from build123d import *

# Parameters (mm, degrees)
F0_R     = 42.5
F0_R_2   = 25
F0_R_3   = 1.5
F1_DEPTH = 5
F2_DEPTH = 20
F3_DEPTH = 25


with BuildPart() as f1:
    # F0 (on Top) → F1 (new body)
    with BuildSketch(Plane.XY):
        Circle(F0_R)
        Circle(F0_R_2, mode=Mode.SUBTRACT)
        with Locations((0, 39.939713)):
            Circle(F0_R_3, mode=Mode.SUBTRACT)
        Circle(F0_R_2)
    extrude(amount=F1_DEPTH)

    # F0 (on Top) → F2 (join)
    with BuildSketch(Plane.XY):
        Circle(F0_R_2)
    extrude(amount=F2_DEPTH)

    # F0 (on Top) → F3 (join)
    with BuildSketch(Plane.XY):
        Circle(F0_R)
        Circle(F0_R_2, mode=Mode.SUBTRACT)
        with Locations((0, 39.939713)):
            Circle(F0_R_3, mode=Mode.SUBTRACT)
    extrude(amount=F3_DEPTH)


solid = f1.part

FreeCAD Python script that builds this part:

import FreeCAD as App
import Part
import Sketcher
from FreeCAD import Vector
Q = App.Units.Quantity

doc = App.newDocument("Part")
body = doc.addObject("PartDesign::Body", "Body")

# Sketch on XY plane
sketch1 = doc.addObject("Sketcher::SketchObject", "Sketch")
body.addObject(sketch1)
sketch1.AttachmentSupport = (doc.XY_Plane, [""])
sketch1.MapMode = "FlatFace"
sketch1.addGeometry([
    Part.Circle(Vector(0, 0, 0), Vector(0, 0, 1), 42.5),
    Part.Circle(Vector(0, 39.939713, 0), Vector(0, 0, 1), 1.5),
], False)
sketch1.addConstraint([
    Sketcher.Constraint("Coincident", 0, 3, -1, 1),
    Sketcher.Constraint("PointOnObject", 1, 3, -2),
    Sketcher.Constraint("Diameter", 0, Q("85 mm")),
    Sketcher.Constraint("Diameter", 1, Q("3 mm")),
    Sketcher.Constraint("DistanceY", -1, 1, 1, 3, Q("39.939713 mm")),
])
pad1 = doc.addObject("PartDesign::Pad", "Pad")
body.addObject(pad1)
pad1.Profile = sketch1
pad1.Length = 5

# Sketch on XY plane
sketch2 = doc.addObject("Sketcher::SketchObject", "Sketch001")
body.addObject(sketch2)
sketch2.AttachmentSupport = (doc.XY_Plane, [""])
sketch2.MapMode = "FlatFace"
sketch2.addGeometry(Part.Circle(Vector(0, 0, 0), Vector(0, 0, 1), 25), False)
sketch2.addConstraint([
    Sketcher.Constraint("Coincident", 0, 3, -1, 1),
    Sketcher.Constraint("Diameter", 0, Q("50 mm")),
])
pad2 = doc.addObject("PartDesign::Pad", "Pad001")
body.addObject(pad2)
pad2.Profile = sketch2
pad2.Length = 20

# Sketch on XY plane
sketch3 = doc.addObject("Sketcher::SketchObject", "Sketch002")
body.addObject(sketch3)
sketch3.AttachmentSupport = (doc.XY_Plane, [""])
sketch3.MapMode = "FlatFace"
sketch3.addGeometry([
    Part.Circle(Vector(0, 0, 0), Vector(0, 0, 1), 42.5),
    Part.Circle(Vector(0, 0, 0), Vector(0, 0, 1), 25),
    Part.Circle(Vector(0, 39.939713, 0), Vector(0, 0, 1), 1.5),
], False)
sketch3.addConstraint([
    Sketcher.Constraint("Coincident", 0, 3, -1, 1),
    Sketcher.Constraint("Coincident", 1, 3, -1, 1),
    Sketcher.Constraint("PointOnObject", 2, 3, -2),
    Sketcher.Constraint("Diameter", 0, Q("85 mm")),
    Sketcher.Constraint("Diameter", 1, Q("50 mm")),
    Sketcher.Constraint("Diameter", 2, Q("3 mm")),
    Sketcher.Constraint("DistanceY", -1, 1, 2, 3, Q("39.939713 mm")),
])
pad3 = doc.addObject("PartDesign::Pad", "Pad002")
body.addObject(pad3)
pad3.Profile = sketch3
pad3.Length = 25

doc.recompute()
